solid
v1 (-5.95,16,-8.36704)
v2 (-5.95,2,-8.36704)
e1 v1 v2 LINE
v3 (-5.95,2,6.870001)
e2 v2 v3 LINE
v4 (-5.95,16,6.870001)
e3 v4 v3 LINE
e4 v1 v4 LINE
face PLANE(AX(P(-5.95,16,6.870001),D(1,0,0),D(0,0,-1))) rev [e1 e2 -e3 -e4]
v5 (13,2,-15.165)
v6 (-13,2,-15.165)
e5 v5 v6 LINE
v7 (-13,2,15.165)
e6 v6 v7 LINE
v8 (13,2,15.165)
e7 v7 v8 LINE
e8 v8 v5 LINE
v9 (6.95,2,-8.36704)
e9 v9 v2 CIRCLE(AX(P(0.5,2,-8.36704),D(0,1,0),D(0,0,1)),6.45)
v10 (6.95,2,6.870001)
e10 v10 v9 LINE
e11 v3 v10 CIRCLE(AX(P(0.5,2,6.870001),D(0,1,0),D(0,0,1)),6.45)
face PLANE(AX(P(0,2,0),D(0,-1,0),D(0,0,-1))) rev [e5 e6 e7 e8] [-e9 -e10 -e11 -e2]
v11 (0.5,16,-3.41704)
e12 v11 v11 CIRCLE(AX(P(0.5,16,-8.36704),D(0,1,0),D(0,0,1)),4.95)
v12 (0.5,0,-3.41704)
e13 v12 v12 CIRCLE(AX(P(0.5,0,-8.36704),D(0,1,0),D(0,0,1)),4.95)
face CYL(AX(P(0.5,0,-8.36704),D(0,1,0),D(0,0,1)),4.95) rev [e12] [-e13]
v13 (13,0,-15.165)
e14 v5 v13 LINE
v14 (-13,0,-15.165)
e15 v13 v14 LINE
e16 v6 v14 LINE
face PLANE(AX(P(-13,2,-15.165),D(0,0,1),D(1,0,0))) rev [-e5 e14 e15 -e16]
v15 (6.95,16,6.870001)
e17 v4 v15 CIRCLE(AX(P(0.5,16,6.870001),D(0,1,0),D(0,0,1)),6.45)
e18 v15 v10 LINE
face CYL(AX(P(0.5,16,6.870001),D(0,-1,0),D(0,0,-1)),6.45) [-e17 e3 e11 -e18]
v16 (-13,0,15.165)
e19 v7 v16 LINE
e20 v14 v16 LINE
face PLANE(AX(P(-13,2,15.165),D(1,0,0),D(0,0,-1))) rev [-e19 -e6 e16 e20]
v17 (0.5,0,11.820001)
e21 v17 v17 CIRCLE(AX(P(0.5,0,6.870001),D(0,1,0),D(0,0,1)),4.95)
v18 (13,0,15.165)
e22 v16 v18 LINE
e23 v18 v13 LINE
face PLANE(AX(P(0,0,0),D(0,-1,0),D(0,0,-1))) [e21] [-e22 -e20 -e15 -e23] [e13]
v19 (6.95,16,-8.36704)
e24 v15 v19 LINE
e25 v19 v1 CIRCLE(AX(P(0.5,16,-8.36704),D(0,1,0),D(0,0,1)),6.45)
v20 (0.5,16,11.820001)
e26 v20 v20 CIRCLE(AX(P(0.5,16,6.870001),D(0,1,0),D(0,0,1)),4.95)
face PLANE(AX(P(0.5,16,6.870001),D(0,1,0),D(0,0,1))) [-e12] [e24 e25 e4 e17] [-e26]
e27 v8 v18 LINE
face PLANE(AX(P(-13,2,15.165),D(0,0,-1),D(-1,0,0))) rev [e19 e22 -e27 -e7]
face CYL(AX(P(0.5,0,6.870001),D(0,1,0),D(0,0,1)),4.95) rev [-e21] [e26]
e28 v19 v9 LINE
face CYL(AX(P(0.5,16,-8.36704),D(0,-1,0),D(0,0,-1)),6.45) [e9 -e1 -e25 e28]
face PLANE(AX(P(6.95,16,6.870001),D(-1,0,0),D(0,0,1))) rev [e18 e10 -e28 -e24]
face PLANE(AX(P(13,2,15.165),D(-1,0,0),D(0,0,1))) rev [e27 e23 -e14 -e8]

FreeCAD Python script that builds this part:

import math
import FreeCAD as App
import Part
import Sketcher

V = App.Vector
Q = App.Units.Quantity

doc = App.newDocument("Part")
body = doc.addObject("PartDesign::Body", "Body")

# Sketch on XZ plane
sketch1 = body.newObject("Sketcher::SketchObject", "Sketch")
sketch1.AttachmentSupport = (doc.getObject("XZ_Plane"), [""])
sketch1.MapMode = "FlatFace"
sketch1.addGeometry([
    Part.LineSegment(V(-13, -15, 0), V(-13, 15, 0)),
    Part.LineSegment(V(-13, 15, 0), V(13, 15, 0)),
    Part.LineSegment(V(13, 15, 0), V(13, -15, 0)),
    Part.LineSegment(V(13, -15, 0), V(-13, -15, 0)),
], False)
sketch1.addConstraint([
    Sketcher.Constraint("Coincident", 0, 2, 1, 1),
    Sketcher.Constraint("Coincident", 1, 2, 2, 1),
    Sketcher.Constraint("Coincident", 2, 2, 3, 1),
    Sketcher.Constraint("Coincident", 3, 2, 0, 1),
    Sketcher.Constraint("Vertical", 0),
    Sketcher.Constraint("Horizontal", 1),
    Sketcher.Constraint("Vertical", 2),
    Sketcher.Constraint("Horizontal", 3),
    Sketcher.Constraint("Symmetric", 0, 2, 2, 2, -1, 1),
    Sketcher.Constraint("DistanceX", 1, 1, 1, 2, Q("26 mm")),
    Sketcher.Constraint("DistanceY", 0, 1, 0, 2, Q("30.33 mm")),
])
pad1 = body.newObject("PartDesign::Pad", "Pad")
pad1.Profile = sketch1
pad1.Length = 2
pad1.Reversed = True

# Sketch on XZ plane
sketch2 = body.newObject("Sketcher::SketchObject", "Sketch001")
sketch2.AttachmentSupport = (doc.getObject("XZ_Plane"), [""])
sketch2.MapMode = "FlatFace"
sketch2.AttachmentOffset = App.Placement(V(0, 0, -2), App.Rotation())
sketch2.addGeometry([
    Part.Circle(V(0.5, 6.9, 0), V(0, 0, 1), 5),
    Part.Circle(V(0.5, -8.4, 0), V(0, 0, 1), 5),
], False)
sketch2.addConstraint([
    Sketcher.Constraint("Equal", 0, 1),
    Sketcher.Constraint("Vertical", 0, 3, 1, 3),
    Sketcher.Constraint("Diameter", 0, Q("9.9 mm")),
    Sketcher.Constraint("DistanceX", -1, 1, 0, 3, Q("0.5 mm")),
    Sketcher.Constraint("DistanceY", -1, 1, 0, 3, Q("6.870001 mm")),
    Sketcher.Constraint("DistanceY", 1, 3, -1, 1, Q("8.36704 mm")),
])
pocket1 = body.newObject("PartDesign::Pocket", "Pocket")
pocket1.Profile = sketch2
pocket1.Type = "ThroughAll"
pocket1.Reversed = True

# Sketch on XZ plane
sketch3 = body.newObject("Sketcher::SketchObject", "Sketch002")
sketch3.AttachmentSupport = (doc.getObject("XZ_Plane"), [""])
sketch3.MapMode = "FlatFace"
sketch3.AttachmentOffset = App.Placement(V(0, 0, -16), App.Rotation())
sketch3.addGeometry([
    Part.LineSegment(V(-6, -8.4, 0), V(-6, 6.9, 0)),  # 0
    Part.ArcOfCircle(Part.Circle(V(0.5, 6.9, 0), V(0, 0, 1), 6.5), math.radians(0), math.radians(180)),  # 1
    Part.LineSegment(V(7, 6.9, 0), V(7, -8.4, 0)),  # 2
    Part.ArcOfCircle(Part.Circle(V(0.5, -8.4, 0), V(0, 0, 1), 6.5), math.radians(180), math.radians(360)),  # 3
    Part.Circle(V(0.5, 6.9, 0), V(0, 0, 1), 5),  # 4
    Part.Circle(V(0.5, -8.4, 0), V(0, 0, 1), 5),  # 5
], False)
sketch3.addConstraint([
    Sketcher.Constraint("Tangent", 0, 2, 1, 2),
    Sketcher.Constraint("Tangent", 1, 1, 2, 1),
    Sketcher.Constraint("Tangent", 2, 2, 3, 2),
    Sketcher.Constraint("Tangent", 3, 1, 0, 1),
    Sketcher.Constraint("Vertical", 0),
    Sketcher.Constraint("Vertical", 2),
    Sketcher.Constraint("Coincident", 4, 3, 1, 3),
    Sketcher.Constraint("Coincident", 5, 3, 3, 3),
    Sketcher.Constraint("Equal", 4, 5),
    Sketcher.Constraint("Diameter", 4, Q("9.9 mm")),
    Sketcher.Constraint("Radius", 1, Q("6.45 mm")),
    Sketcher.Constraint("DistanceX", -1, 1, 1, 3, Q("0.5 mm")),
    Sketcher.Constraint("DistanceY", -1, 1, 1, 3, Q("6.870001 mm")),
    Sketcher.Constraint("DistanceY", 0, 1, 0, 2, Q("15.237041 mm")),
])
pad2 = body.newObject("PartDesign::Pad", "Pad001")
pad2.Profile = sketch3
pad2.Length = 14

doc.recompute()
